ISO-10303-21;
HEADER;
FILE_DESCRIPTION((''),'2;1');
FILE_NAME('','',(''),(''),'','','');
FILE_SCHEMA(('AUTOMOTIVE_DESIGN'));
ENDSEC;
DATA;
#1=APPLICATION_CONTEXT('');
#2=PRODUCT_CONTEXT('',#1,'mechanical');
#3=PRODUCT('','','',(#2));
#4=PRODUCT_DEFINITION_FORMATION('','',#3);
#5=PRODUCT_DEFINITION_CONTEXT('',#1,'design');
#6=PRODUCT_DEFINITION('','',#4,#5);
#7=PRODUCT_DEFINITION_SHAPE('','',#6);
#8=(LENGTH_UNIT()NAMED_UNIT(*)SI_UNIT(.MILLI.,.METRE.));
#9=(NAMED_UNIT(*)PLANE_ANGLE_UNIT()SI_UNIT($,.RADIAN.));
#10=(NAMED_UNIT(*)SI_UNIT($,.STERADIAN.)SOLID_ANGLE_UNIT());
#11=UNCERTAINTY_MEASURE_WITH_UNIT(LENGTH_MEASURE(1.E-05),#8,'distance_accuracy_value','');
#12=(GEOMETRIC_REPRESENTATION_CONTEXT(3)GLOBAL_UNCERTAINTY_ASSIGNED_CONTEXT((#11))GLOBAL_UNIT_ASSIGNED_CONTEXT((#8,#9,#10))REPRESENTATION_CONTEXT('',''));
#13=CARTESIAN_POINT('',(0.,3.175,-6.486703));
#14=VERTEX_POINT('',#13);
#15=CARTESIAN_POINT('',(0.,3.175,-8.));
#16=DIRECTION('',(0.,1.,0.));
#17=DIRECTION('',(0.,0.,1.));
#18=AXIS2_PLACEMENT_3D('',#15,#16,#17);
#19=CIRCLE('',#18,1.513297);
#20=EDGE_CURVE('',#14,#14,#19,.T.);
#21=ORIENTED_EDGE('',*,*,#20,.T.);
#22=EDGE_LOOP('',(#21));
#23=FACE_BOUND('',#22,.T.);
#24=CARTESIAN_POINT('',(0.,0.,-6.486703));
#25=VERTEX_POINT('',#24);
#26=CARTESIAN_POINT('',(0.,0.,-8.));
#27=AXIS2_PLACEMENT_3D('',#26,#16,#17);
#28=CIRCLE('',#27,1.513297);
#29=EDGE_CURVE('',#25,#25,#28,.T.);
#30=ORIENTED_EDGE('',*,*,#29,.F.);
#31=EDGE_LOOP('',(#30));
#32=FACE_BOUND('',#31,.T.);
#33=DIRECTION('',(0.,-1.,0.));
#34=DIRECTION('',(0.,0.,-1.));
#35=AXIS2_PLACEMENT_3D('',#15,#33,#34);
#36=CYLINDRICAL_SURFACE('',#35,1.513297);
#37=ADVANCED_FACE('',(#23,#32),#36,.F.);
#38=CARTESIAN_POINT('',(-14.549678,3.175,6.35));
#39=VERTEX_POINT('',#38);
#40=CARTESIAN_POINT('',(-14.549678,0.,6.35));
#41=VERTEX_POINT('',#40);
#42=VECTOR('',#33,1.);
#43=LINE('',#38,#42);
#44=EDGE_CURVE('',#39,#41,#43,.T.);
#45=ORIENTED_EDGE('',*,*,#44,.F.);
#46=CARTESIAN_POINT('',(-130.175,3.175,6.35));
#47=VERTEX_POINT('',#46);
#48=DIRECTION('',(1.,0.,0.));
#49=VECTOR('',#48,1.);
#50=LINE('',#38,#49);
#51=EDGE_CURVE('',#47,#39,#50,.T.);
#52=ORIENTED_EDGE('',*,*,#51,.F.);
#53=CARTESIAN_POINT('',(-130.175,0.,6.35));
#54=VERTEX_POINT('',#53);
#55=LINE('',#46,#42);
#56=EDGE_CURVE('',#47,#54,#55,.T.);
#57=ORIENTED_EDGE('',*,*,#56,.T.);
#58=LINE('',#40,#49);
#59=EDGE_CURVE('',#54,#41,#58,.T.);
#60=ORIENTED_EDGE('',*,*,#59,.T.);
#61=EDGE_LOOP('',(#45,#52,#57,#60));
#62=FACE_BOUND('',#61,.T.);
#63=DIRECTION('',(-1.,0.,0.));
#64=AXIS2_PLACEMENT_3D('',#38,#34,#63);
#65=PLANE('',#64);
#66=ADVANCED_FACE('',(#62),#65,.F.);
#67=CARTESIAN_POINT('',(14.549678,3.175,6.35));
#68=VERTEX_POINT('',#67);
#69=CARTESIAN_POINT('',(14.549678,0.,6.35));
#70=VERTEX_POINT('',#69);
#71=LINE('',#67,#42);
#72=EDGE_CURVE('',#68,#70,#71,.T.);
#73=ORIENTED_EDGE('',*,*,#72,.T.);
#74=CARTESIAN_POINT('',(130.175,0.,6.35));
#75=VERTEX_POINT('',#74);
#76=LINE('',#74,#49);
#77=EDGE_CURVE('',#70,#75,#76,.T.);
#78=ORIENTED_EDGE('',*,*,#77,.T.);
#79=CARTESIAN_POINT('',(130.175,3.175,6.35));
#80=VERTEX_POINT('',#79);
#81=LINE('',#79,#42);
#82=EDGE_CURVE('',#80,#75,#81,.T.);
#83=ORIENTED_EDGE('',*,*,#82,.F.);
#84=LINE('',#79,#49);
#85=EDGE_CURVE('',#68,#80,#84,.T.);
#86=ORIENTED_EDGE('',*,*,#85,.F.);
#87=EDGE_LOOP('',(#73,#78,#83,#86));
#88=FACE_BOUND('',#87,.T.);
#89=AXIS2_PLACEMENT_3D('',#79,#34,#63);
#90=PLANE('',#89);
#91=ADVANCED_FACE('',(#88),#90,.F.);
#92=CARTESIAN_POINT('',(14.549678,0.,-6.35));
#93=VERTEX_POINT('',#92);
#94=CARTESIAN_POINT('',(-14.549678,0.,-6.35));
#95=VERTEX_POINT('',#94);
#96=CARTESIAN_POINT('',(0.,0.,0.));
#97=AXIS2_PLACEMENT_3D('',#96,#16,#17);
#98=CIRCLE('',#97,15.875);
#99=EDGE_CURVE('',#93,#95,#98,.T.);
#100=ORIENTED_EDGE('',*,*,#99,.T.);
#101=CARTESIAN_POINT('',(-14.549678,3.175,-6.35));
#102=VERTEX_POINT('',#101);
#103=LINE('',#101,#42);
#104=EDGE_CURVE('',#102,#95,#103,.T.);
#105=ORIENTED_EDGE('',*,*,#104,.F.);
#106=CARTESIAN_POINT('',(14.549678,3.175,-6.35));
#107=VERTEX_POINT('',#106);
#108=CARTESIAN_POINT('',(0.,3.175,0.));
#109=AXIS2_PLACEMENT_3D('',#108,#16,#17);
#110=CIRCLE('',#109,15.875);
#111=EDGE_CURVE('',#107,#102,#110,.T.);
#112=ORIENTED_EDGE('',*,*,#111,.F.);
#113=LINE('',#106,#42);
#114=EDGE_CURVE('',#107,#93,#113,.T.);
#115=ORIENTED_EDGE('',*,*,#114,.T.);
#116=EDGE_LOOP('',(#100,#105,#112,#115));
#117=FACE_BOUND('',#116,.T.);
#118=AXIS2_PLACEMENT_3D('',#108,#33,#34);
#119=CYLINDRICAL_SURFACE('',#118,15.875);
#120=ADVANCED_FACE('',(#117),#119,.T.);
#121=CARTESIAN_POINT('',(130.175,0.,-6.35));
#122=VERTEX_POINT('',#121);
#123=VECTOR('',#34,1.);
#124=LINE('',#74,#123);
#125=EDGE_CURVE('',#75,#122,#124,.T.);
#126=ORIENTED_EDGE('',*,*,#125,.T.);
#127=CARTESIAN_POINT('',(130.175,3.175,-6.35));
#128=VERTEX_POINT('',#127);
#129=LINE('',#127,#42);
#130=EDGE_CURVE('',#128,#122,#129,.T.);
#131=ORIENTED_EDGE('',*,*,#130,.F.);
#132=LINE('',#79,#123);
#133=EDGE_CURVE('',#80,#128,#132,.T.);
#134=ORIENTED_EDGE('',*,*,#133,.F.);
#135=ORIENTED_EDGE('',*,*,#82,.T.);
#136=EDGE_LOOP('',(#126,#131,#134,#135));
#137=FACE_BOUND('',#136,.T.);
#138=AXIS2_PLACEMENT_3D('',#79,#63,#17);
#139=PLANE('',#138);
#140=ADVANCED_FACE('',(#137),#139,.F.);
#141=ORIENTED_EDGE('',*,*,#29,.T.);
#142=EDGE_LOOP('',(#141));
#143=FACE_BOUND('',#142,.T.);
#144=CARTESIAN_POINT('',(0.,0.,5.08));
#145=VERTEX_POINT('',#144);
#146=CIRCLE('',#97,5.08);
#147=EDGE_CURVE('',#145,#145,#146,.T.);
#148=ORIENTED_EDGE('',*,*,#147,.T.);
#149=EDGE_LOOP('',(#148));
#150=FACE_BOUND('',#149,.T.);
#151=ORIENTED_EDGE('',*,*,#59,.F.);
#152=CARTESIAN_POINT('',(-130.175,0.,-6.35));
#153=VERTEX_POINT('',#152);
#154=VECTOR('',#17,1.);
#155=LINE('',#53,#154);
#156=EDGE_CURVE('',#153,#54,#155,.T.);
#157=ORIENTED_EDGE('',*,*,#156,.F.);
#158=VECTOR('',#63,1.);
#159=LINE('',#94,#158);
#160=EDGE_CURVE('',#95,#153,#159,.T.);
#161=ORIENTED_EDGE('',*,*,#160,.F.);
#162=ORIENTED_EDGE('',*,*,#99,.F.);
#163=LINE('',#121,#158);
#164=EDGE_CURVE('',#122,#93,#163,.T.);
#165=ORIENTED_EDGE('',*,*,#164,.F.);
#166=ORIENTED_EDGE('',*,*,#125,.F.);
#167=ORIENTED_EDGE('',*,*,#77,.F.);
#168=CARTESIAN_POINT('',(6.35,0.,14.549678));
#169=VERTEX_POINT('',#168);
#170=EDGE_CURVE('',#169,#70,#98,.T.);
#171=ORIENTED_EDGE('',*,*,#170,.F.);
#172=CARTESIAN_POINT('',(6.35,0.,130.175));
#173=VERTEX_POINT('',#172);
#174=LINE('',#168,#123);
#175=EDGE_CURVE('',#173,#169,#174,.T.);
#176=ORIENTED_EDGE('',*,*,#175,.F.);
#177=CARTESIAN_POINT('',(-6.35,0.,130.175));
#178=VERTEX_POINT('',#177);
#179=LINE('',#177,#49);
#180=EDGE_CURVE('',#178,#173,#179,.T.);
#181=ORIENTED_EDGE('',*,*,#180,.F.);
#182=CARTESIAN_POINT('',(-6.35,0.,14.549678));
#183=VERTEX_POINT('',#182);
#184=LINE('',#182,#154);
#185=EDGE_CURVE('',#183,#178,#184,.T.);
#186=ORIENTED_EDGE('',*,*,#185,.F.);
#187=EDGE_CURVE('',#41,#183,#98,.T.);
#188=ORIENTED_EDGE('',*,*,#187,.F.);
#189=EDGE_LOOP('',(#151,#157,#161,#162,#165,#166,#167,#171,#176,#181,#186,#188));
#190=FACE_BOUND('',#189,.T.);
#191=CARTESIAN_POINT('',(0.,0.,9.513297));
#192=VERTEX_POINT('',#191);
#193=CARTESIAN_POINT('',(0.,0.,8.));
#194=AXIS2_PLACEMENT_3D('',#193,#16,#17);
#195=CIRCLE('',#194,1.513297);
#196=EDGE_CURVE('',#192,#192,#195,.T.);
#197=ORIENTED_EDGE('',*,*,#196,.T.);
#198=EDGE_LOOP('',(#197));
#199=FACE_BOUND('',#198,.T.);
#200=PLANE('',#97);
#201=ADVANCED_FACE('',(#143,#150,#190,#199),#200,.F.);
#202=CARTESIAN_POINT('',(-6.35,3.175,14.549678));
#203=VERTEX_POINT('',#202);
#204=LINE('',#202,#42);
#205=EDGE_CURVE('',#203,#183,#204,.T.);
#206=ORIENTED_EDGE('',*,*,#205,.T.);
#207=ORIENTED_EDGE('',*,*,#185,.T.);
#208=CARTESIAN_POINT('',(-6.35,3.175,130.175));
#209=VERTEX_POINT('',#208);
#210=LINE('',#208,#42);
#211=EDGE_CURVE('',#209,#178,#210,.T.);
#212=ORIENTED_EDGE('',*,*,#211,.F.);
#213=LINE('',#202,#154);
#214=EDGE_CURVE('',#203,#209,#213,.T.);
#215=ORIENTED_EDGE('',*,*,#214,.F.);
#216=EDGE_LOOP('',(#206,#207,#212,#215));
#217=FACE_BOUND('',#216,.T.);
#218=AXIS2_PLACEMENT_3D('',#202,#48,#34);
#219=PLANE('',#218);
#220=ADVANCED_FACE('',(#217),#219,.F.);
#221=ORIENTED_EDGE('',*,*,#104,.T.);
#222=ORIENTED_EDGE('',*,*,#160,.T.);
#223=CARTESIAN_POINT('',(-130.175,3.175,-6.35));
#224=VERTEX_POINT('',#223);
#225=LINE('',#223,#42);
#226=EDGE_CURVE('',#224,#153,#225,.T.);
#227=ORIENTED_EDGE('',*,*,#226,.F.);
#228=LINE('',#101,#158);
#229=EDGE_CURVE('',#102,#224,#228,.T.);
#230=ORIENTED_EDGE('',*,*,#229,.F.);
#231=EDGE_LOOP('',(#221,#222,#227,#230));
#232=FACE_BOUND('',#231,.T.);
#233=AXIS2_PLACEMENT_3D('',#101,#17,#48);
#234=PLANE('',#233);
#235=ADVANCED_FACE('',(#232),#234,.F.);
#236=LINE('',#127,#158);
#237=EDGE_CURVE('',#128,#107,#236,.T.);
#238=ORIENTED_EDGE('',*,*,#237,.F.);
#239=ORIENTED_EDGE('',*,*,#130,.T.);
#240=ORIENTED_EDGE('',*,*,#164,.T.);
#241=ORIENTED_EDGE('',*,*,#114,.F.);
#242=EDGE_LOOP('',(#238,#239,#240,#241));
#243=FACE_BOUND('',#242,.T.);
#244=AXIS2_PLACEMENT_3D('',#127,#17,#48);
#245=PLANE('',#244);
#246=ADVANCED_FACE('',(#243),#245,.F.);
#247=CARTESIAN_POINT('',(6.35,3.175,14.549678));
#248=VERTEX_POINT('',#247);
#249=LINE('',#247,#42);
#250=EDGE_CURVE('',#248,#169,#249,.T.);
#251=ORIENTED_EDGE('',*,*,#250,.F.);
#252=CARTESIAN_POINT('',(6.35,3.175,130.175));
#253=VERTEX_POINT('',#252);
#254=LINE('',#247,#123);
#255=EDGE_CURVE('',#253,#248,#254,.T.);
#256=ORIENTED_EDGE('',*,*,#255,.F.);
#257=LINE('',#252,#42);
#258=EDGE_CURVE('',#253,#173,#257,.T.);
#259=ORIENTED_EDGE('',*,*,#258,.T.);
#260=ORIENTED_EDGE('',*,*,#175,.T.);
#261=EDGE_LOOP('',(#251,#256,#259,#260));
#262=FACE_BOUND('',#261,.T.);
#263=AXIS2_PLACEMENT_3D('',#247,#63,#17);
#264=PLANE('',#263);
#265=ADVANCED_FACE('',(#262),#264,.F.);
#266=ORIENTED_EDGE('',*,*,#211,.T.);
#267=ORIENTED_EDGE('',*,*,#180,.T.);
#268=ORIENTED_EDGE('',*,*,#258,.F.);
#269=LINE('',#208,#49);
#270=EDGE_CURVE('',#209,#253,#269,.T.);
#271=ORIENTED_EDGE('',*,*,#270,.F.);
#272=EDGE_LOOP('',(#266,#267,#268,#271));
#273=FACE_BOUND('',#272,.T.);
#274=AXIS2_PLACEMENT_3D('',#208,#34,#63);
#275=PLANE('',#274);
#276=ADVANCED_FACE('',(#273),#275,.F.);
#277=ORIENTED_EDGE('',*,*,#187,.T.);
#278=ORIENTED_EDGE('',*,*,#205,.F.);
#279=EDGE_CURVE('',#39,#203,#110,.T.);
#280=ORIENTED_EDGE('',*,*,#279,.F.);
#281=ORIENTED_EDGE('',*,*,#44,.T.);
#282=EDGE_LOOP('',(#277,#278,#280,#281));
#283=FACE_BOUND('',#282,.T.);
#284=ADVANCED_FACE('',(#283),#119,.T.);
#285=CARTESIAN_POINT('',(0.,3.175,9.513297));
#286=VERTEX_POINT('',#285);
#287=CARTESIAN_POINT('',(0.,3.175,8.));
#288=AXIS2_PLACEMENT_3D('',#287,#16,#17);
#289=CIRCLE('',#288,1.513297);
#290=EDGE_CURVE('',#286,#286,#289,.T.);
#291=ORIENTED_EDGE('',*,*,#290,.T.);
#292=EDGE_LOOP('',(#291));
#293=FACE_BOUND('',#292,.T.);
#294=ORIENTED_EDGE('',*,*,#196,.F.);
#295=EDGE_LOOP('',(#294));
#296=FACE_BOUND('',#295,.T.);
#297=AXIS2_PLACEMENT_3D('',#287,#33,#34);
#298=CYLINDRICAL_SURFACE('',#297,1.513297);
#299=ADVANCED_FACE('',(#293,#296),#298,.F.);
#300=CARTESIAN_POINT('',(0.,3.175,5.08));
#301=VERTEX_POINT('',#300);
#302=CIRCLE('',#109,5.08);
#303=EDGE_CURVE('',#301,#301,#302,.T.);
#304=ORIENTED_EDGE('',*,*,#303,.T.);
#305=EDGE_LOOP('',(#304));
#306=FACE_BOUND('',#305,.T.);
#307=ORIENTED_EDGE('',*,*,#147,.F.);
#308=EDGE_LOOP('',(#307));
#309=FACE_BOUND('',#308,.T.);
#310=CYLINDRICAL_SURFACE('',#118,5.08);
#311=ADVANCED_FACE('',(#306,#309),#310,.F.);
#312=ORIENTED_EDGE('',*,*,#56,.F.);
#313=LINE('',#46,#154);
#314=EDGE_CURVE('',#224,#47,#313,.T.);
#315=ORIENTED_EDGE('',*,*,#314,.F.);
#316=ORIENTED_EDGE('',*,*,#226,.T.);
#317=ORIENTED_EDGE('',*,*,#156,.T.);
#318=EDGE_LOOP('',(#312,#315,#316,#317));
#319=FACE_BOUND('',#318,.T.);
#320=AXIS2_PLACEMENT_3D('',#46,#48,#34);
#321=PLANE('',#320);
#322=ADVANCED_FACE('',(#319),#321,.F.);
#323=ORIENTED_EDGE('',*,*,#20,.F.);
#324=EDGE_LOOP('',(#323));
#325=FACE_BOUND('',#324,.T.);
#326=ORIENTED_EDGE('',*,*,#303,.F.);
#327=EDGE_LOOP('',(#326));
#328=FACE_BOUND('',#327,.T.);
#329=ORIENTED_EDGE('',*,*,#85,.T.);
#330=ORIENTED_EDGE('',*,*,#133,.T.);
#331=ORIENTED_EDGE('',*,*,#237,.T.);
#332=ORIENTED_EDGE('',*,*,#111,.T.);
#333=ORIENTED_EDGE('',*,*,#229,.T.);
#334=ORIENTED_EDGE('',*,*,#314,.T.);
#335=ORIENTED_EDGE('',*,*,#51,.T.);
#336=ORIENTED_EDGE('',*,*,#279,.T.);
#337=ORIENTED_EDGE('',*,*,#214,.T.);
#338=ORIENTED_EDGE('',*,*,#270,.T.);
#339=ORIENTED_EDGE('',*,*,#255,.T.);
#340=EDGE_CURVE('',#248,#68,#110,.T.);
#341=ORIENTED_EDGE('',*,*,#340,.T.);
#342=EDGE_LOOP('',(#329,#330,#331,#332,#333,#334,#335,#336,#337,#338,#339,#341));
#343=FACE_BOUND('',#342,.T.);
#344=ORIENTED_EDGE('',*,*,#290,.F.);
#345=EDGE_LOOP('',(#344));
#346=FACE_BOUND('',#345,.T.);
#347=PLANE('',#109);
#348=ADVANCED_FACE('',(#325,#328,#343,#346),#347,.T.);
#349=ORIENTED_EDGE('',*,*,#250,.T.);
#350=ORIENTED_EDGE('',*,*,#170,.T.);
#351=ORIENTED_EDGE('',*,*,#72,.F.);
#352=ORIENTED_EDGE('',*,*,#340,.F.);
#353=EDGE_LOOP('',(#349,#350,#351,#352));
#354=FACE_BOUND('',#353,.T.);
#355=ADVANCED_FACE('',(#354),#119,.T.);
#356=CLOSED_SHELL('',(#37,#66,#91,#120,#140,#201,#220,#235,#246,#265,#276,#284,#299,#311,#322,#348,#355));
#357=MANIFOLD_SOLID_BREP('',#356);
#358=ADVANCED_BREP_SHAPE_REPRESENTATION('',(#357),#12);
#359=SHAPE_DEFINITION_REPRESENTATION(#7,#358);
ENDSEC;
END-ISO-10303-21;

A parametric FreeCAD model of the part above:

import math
import FreeCAD as App
import Part
import Sketcher

V = App.Vector
Q = App.Units.Quantity

doc = App.newDocument("Part")
body = doc.addObject("PartDesign::Body", "Body")

sketch1 = doc.addObject("Sketcher::SketchObject", "Sketch")
body.addObject(sketch1)
sketch1.AttachmentSupport = (doc.XZ_Plane, [""])
sketch1.MapMode = "FlatFace"
sketch1.addGeometry([
    Part.LineSegment(V(-15, -6, 0), V(-130, -6, 0)),
    Part.LineSegment(V(-130, -6, 0), V(-130, 6, 0)),
    Part.LineSegment(V(-130, 6, 0), V(-15, 6, 0)),
    Part.ArcOfCircle(Part.Circle(V(0, 0, 0), V(0, 0, 1), 16), math.radians(114), math.radians(156)),
    Part.LineSegment(V(-6, 15, 0), V(-6, 130, 0)),
    Part.LineSegment(V(-6, 130, 0), V(6, 130, 0)),
    Part.LineSegment(V(6, 130, 0), V(6, 15, 0)),
    Part.ArcOfCircle(Part.Circle(V(0, 0, 0), V(0, 0, 1), 16), math.radians(24), math.radians(66)),
    Part.LineSegment(V(15, 6, 0), V(130, 6, 0)),
    Part.LineSegment(V(130, 6, 0), V(130, -6, 0)),
    Part.LineSegment(V(130, -6, 0), V(15, -6, 0)),
    Part.ArcOfCircle(Part.Circle(V(0, 0, 0), V(0, 0, 1), 16), math.radians(-156), math.radians(-24)),
], False)
sketch1.addConstraint([
    Sketcher.Constraint("Coincident", 0, 2, 1, 1),
    Sketcher.Constraint("Coincident", 1, 2, 2, 1),
    Sketcher.Constraint("Coincident", 2, 2, 3, 2),
    Sketcher.Constraint("Coincident", 3, 1, 4, 1),
    Sketcher.Constraint("Coincident", 4, 2, 5, 1),
    Sketcher.Constraint("Coincident", 5, 2, 6, 1),
    Sketcher.Constraint("Coincident", 6, 2, 7, 2),
    Sketcher.Constraint("Coincident", 7, 1, 8, 1),
    Sketcher.Constraint("Coincident", 8, 2, 9, 1),
    Sketcher.Constraint("Coincident", 9, 2, 10, 1),
    Sketcher.Constraint("Coincident", 10, 2, 11, 2),
    Sketcher.Constraint("Coincident", 11, 1, 0, 1),
    Sketcher.Constraint("Horizontal", 0),
    Sketcher.Constraint("Vertical", 1),
    Sketcher.Constraint("Horizontal", 2),
    Sketcher.Constraint("Vertical", 4),
    Sketcher.Constraint("Horizontal", 5),
    Sketcher.Constraint("Vertical", 6),
    Sketcher.Constraint("Horizontal", 8),
    Sketcher.Constraint("Vertical", 9),
    Sketcher.Constraint("Horizontal", 10),
    Sketcher.Constraint("Coincident", 3, 3, -1, 1),
    Sketcher.Constraint("Coincident", 7, 3, -1, 1),
    Sketcher.Constraint("Coincident", 11, 3, -1, 1),
    Sketcher.Constraint("Equal", 3, 7),
    Sketcher.Constraint("Equal", 7, 11),
    Sketcher.Constraint("Symmetric", 0, 2, 8, 2, -1, 1),
    Sketcher.Constraint("Horizontal", 3, 1, 6, 2),
    Sketcher.Constraint("Horizontal", 2, 2, 7, 1),
    Sketcher.Constraint("Horizontal", 0, 2, 9, 2),
    Sketcher.Constraint("Equal", 5, 1),
    Sketcher.Constraint("Equal", 10, 4),
    Sketcher.Constraint("DistanceX", 5, 1, 5, 2, Q("0.5 in")),
    Sketcher.Constraint("Radius", 3, Q("0.625 in")),
    Sketcher.Constraint("DistanceX", 0, 2, -1, 1, Q("5.125 in")),
])
pad1 = doc.addObject("PartDesign::Pad", "Pad")
body.addObject(pad1)
pad1.Profile = sketch1
pad1.Length = Q("0.125 in")
pad1.Reversed = True

sketch2 = doc.addObject("Sketcher::SketchObject", "Sketch001")
body.addObject(sketch2)
sketch2.AttachmentSupport = (doc.XZ_Plane, [""])
sketch2.MapMode = "FlatFace"
sketch2.addGeometry([
    Part.Circle(V(0, -8, 0), V(0, 0, 1), 1.5),
    Part.Circle(V(0, 8, 0), V(0, 0, 1), 1.5),
    Part.Circle(V(0, 0, 0), V(0, 0, 1), 5.1),
], False)
sketch2.addConstraint([
    Sketcher.Constraint("Coincident", 2, 3, -1, 1),
    Sketcher.Constraint("Equal", 0, 1),
    Sketcher.Constraint("Symmetric", 0, 3, 1, 3, -1, 1),
    Sketcher.Constraint("PointOnObject", 0, 3, -2),
    Sketcher.Constraint("Diameter", 2, Q("0.4 in")),
    Sketcher.Constraint("Diameter", 0, 3.026594),
    Sketcher.Constraint("DistanceY", 0, 3, -1, 1, 8.0),
])
pocket1 = doc.addObject("PartDesign::Pocket", "Pocket")
body.addObject(pocket1)
pocket1.Profile = sketch2
pocket1.Type = "ThroughAll"

doc.recompute()
